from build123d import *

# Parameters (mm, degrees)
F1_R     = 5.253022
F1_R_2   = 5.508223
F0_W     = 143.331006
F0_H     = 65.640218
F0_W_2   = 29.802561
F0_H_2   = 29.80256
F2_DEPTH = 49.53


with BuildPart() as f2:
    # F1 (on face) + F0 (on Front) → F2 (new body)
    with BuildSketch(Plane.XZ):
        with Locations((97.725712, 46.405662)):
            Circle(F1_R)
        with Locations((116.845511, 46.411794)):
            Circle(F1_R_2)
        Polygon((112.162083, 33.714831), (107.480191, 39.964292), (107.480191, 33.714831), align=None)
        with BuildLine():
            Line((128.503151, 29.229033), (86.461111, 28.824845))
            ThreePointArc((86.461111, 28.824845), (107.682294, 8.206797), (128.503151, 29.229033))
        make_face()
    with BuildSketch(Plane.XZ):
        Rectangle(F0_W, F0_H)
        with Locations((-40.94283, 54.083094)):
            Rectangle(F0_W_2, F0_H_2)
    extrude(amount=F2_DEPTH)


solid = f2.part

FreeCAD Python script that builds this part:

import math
import FreeCAD as App
import Part
import Sketcher

V = App.Vector
Q = App.Units.Quantity

doc = App.newDocument("Part")
body = doc.addObject("PartDesign::Body", "Body")
body.AllowCompound = True

# Sketch on XZ plane
sketch1 = body.newObject("Sketcher::SketchObject", "Sketch")
sketch1.AttachmentSupport = (doc.getObject("XZ_Plane"), [""])
sketch1.MapMode = "FlatFace"
sketch1.addGeometry([
    Part.Circle(V(97.725712, 46.405662, 0), V(0, 0, 1), 5.253022),  # 0
    Part.Circle(V(116.845511, 46.411794, 0), V(0, 0, 1), 5.508223),  # 1
    Part.LineSegment(V(112.162083, 33.714831, 0), V(107.480191, 39.964292, 0)),  # 2
    Part.LineSegment(V(107.480191, 39.964292, 0), V(107.480191, 33.714831, 0)),  # 3
    Part.LineSegment(V(107.480191, 33.714831, 0), V(112.162083, 33.714831, 0)),  # 4
    Part.LineSegment(V(128.503151, 29.229033, 0), V(86.461111, 28.824845, 0)),  # 5
    Part.ArcOfCircle(Part.Circle(V(107.48019, 29.228786, 0), V(0, 0, 1), 21.022961), math.radians(-178.899035), math.radians(0.000673)),  # 6
    Part.LineSegment(V(-71.665503, 32.820109, 0), V(-71.665503, -32.820109, 0)),  # 7
    Part.LineSegment(V(-71.665503, -32.820109, 0), V(71.665503, -32.820109, 0)),  # 8
    Part.LineSegment(V(71.665503, -32.820109, 0), V(71.665503, 32.820109, 0)),  # 9
    Part.LineSegment(V(71.665503, 32.820109, 0), V(-71.665503, 32.820109, 0)),  # 10
    Part.LineSegment(V(-55.84411, 68.984374, 0), V(-55.84411, 39.181814, 0)),  # 11
    Part.LineSegment(V(-55.84411, 39.181814, 0), V(-26.041549, 39.181814, 0)),  # 12
    Part.LineSegment(V(-26.041549, 39.181814, 0), V(-26.041549, 68.984374, 0)),  # 13
    Part.LineSegment(V(-26.041549, 68.984374, 0), V(-55.84411, 68.984374, 0)),  # 14
], False)
sketch1.addConstraint([
    Sketcher.Constraint("Coincident", 2, 2, 3, 1),
    Sketcher.Constraint("Coincident", 3, 2, 4, 1),
    Sketcher.Constraint("Coincident", 4, 2, 2, 1),
    Sketcher.Constraint("Coincident", 5, 1, 6, 2),
    Sketcher.Constraint("Coincident", 6, 1, 5, 2),
    Sketcher.Constraint("Coincident", 7, 2, 8, 1),
    Sketcher.Constraint("Coincident", 8, 2, 9, 1),
    Sketcher.Constraint("Coincident", 9, 2, 10, 1),
    Sketcher.Constraint("Coincident", 10, 2, 7, 1),
    Sketcher.Constraint("Coincident", 11, 2, 12, 1),
    Sketcher.Constraint("Coincident", 12, 2, 13, 1),
    Sketcher.Constraint("Coincident", 13, 2, 14, 1),
    Sketcher.Constraint("Coincident", 14, 2, 11, 1),
    Sketcher.Constraint("Vertical", 3),
    Sketcher.Constraint("Horizontal", 4),
    Sketcher.Constraint("Vertical", 7),
    Sketcher.Constraint("Horizontal", 8),
    Sketcher.Constraint("Vertical", 9),
    Sketcher.Constraint("Horizontal", 10),
    Sketcher.Constraint("Vertical", 11),
    Sketcher.Constraint("Horizontal", 12),
    Sketcher.Constraint("Vertical", 13),
    Sketcher.Constraint("Horizontal", 14),
    Sketcher.Constraint("Symmetric", 7, 2, 9, 2, -1, 1),
    Sketcher.Constraint("Vertical", 6, 3, 2, 2),
    Sketcher.Constraint("Equal", 14, 11),
    Sketcher.Constraint("Radius", 6, 21.022961),
    Sketcher.Constraint("Diameter", 0, 10.506044),
    Sketcher.Constraint("Diameter", 1, 11.016446),
    Sketcher.Constraint("DistanceX", 4, 1, 4, 2, 4.681892),
    Sketcher.Constraint("DistanceX", 12, 1, 12, 2, 29.802561),
    Sketcher.Constraint("DistanceY", 3, 2, 3, 1, 6.249461),
    Sketcher.Constraint("DistanceY", 7, 2, 7, 1, 65.640218),
    Sketcher.Constraint("DistanceX", 0, 3, 1, 3, 19.119799),
    Sketcher.Constraint("DistanceX", 6, 1, 0, 3, 11.264601),
    Sketcher.Constraint("DistanceY", 7, 2, 2, 2, 72.784401),
    Sketcher.Constraint("DistanceX", 8, 1, 8, 2, 143.331006),
    Sketcher.Constraint("DistanceX", -1, 1, 0, 3, 97.725712),
    Sketcher.Constraint("DistanceX", -1, 1, 6, 3, 107.48019),
    Sketcher.Constraint("DistanceX", 11, 2, -1, 1, 55.84411),
    Sketcher.Constraint("DistanceY", 2, 2, 0, 3, 6.44137),
    Sketcher.Constraint("DistanceY", 5, 1, 1, 3, 17.182761),
    Sketcher.Constraint("DistanceY", 5, 1, 2, 2, 10.735259),
    Sketcher.Constraint("DistanceY", 6, 1, 11, 2, 10.356969),
    Sketcher.Constraint("Distance", 5, 42.043983),
])
pad1 = body.newObject("PartDesign::Pad", "Pad")
pad1.Profile = sketch1
pad1.Length = Q("1.95 in")

doc.recompute()
